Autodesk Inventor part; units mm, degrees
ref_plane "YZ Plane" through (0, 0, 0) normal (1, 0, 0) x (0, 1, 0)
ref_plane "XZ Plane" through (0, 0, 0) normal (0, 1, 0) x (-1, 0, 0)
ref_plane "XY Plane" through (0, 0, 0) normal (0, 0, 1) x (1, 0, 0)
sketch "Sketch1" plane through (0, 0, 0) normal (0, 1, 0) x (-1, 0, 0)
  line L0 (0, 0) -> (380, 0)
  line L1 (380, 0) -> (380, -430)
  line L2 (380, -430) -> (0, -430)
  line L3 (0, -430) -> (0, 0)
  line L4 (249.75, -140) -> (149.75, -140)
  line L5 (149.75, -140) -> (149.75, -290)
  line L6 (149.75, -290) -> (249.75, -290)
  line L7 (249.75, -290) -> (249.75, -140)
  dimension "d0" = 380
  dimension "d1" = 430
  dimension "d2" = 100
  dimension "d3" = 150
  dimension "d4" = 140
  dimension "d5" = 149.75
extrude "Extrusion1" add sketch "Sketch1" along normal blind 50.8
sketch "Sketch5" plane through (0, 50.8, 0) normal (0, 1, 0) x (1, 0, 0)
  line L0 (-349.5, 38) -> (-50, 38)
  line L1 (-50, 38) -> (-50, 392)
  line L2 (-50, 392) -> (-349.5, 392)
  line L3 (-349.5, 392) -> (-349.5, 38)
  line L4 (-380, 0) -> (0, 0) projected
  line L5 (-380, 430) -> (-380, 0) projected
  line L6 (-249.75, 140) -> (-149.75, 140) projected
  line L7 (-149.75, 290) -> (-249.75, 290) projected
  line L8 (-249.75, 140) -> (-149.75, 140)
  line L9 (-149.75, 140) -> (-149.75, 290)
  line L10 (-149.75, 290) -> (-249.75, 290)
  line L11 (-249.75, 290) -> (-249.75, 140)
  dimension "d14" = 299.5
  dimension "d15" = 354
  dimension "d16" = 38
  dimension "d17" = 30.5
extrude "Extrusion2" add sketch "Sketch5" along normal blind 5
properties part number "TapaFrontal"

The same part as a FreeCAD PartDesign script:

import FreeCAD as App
import Part
import Sketcher
Q = App.Units.Quantity

doc = App.newDocument("Part")
body = doc.addObject("PartDesign::Body", "Body")

sketch1 = body.newObject("Sketcher::SketchObject", "Sketch")
sketch1.AttachmentSupport = (doc.getObject("XZ_Plane"), [""])
sketch1.MapMode = "FlatFace"
sketch1.addGeometry(Part.LineSegment(App.Vector(-380, 0, 0), App.Vector(0, 0, 0)), False)
sketch1.addGeometry(Part.LineSegment(App.Vector(0, 0, 0), App.Vector(0, -430, 0)), False)
sketch1.addGeometry(Part.LineSegment(App.Vector(0, -430, 0), App.Vector(-380, -430, 0)), False)
sketch1.addGeometry(Part.LineSegment(App.Vector(-380, -430, 0), App.Vector(-380, 0, 0)), False)
sketch1.addGeometry(Part.LineSegment(App.Vector(-149.75, -140, 0), App.Vector(-249.75, -140, 0)), False)
sketch1.addGeometry(Part.LineSegment(App.Vector(-249.75, -140, 0), App.Vector(-249.75, -290, 0)), False)
sketch1.addGeometry(Part.LineSegment(App.Vector(-249.75, -290, 0), App.Vector(-149.75, -290, 0)), False)
sketch1.addGeometry(Part.LineSegment(App.Vector(-149.75, -290, 0), App.Vector(-149.75, -140, 0)), False)
sketch1.addConstraint(Sketcher.Constraint("Coincident", 0, 2, 1, 1))
sketch1.addConstraint(Sketcher.Constraint("Coincident", 1, 2, 2, 1))
sketch1.addConstraint(Sketcher.Constraint("Coincident", 2, 2, 3, 1))
sketch1.addConstraint(Sketcher.Constraint("Coincident", 3, 2, 0, 1))
sketch1.addConstraint(Sketcher.Constraint("Coincident", 4, 2, 5, 1))
sketch1.addConstraint(Sketcher.Constraint("Coincident", 5, 2, 6, 1))
sketch1.addConstraint(Sketcher.Constraint("Coincident", 6, 2, 7, 1))
sketch1.addConstraint(Sketcher.Constraint("Coincident", 7, 2, 4, 1))
sketch1.addConstraint(Sketcher.Constraint("Horizontal", 0))
sketch1.addConstraint(Sketcher.Constraint("Vertical", 1))
sketch1.addConstraint(Sketcher.Constraint("Horizontal", 2))
sketch1.addConstraint(Sketcher.Constraint("Vertical", 3))
sketch1.addConstraint(Sketcher.Constraint("Horizontal", 4))
sketch1.addConstraint(Sketcher.Constraint("Vertical", 5))
sketch1.addConstraint(Sketcher.Constraint("Horizontal", 6))
sketch1.addConstraint(Sketcher.Constraint("Vertical", 7))
sketch1.addConstraint(Sketcher.Constraint("Coincident", 0, 2, -1, 1))
sketch1.addConstraint(Sketcher.Constraint("DistanceX", 0, 1, 0, 2, Q("380 mm")))
sketch1.addConstraint(Sketcher.Constraint("DistanceX", 4, 2, 4, 1, Q("100 mm")))
sketch1.addConstraint(Sketcher.Constraint("DistanceY", 1, 2, 1, 1, Q("430 mm")))
sketch1.addConstraint(Sketcher.Constraint("DistanceY", 5, 2, 5, 1, Q("150 mm")))
sketch1.addConstraint(Sketcher.Constraint("DistanceY", 4, 2, -1, 1, Q("140 mm")))
sketch1.addConstraint(Sketcher.Constraint("DistanceX", 6, 2, -1, 1, Q("149.75 mm")))
pad1 = body.newObject("PartDesign::Pad", "Pad")
pad1.Profile = sketch1
pad1.Length = 50.8
pad1.Reversed = True

sketch2 = body.newObject("Sketcher::SketchObject", "Sketch001")
sketch2.AttachmentSupport = (doc.getObject("XZ_Plane"), [""])
sketch2.MapMode = "FlatFace"
sketch2.AttachmentOffset = App.Placement(App.Vector(0, 0, -50.8), App.Rotation())
sketch2.addGeometry(Part.LineSegment(App.Vector(-349.5, -392, 0), App.Vector(-349.5, -38, 0)), False)
sketch2.addGeometry(Part.LineSegment(App.Vector(-349.5, -38, 0), App.Vector(-50, -38, 0)), False)
sketch2.addGeometry(Part.LineSegment(App.Vector(-50, -38, 0), App.Vector(-50, -392, 0)), False)
sketch2.addGeometry(Part.LineSegment(App.Vector(-50, -392, 0), App.Vector(-349.5, -392, 0)), False)
sketch2.addGeometry(Part.LineSegment(App.Vector(-149.75, -140, 0), App.Vector(-249.75, -140, 0)), False)
sketch2.addGeometry(Part.LineSegment(App.Vector(-249.75, -140, 0), App.Vector(-249.75, -290, 0)), False)
sketch2.addGeometry(Part.LineSegment(App.Vector(-249.75, -290, 0), App.Vector(-149.75, -290, 0)), False)
sketch2.addGeometry(Part.LineSegment(App.Vector(-149.75, -290, 0), App.Vector(-149.75, -140, 0)), False)
sketch2.addConstraint(Sketcher.Constraint("Coincident", 0, 2, 1, 1))
sketch2.addConstraint(Sketcher.Constraint("Coincident", 1, 2, 2, 1))
sketch2.addConstraint(Sketcher.Constraint("Coincident", 2, 2, 3, 1))
sketch2.addConstraint(Sketcher.Constraint("Coincident", 3, 2, 0, 1))
sketch2.addConstraint(Sketcher.Constraint("Coincident", 4, 2, 5, 1))
sketch2.addConstraint(Sketcher.Constraint("Coincident", 5, 2, 6, 1))
sketch2.addConstraint(Sketcher.Constraint("Coincident", 6, 2, 7, 1))
sketch2.addConstraint(Sketcher.Constraint("Coincident", 7, 2, 4, 1))
sketch2.addConstraint(Sketcher.Constraint("Vertical", 0))
sketch2.addConstraint(Sketcher.Constraint("Horizontal", 1))
sketch2.addConstraint(Sketcher.Constraint("Vertical", 2))
sketch2.addConstraint(Sketcher.Constraint("Horizontal", 3))
sketch2.addConstraint(Sketcher.Constraint("Horizontal", 4))
sketch2.addConstraint(Sketcher.Constraint("Vertical", 5))
sketch2.addConstraint(Sketcher.Constraint("Horizontal", 6))
sketch2.addConstraint(Sketcher.Constraint("Vertical", 7))
sketch2.addConstraint(Sketcher.Constraint("DistanceY", 0, 1, 0, 2, Q("354 mm")))
sketch2.addConstraint(Sketcher.Constraint("DistanceX", 1, 1, 1, 2, Q("299.5 mm")))
sketch2.addConstraint(Sketcher.Constraint("DistanceY", 0, 2, -1, 1, Q("38 mm")))
sketch2.addConstraint(Sketcher.Constraint("DistanceX", 4, 2, 4, 1, Q("100 mm")))
sketch2.addConstraint(Sketcher.Constraint("DistanceY", 5, 2, 5, 1, Q("150 mm")))
sketch2.addConstraint(Sketcher.Constraint("DistanceX", 1, 2, -1, 1, Q("50 mm")))
sketch2.addConstraint(Sketcher.Constraint("DistanceY", 4, 2, -1, 1, Q("140 mm")))
sketch2.addConstraint(Sketcher.Constraint("DistanceX", 4, 2, -1, 1, Q("249.75 mm")))
pad2 = body.newObject("PartDesign::Pad", "Pad001")
pad2.Profile = sketch2
pad2.Length = 5
pad2.Reversed = True

doc.recompute()
